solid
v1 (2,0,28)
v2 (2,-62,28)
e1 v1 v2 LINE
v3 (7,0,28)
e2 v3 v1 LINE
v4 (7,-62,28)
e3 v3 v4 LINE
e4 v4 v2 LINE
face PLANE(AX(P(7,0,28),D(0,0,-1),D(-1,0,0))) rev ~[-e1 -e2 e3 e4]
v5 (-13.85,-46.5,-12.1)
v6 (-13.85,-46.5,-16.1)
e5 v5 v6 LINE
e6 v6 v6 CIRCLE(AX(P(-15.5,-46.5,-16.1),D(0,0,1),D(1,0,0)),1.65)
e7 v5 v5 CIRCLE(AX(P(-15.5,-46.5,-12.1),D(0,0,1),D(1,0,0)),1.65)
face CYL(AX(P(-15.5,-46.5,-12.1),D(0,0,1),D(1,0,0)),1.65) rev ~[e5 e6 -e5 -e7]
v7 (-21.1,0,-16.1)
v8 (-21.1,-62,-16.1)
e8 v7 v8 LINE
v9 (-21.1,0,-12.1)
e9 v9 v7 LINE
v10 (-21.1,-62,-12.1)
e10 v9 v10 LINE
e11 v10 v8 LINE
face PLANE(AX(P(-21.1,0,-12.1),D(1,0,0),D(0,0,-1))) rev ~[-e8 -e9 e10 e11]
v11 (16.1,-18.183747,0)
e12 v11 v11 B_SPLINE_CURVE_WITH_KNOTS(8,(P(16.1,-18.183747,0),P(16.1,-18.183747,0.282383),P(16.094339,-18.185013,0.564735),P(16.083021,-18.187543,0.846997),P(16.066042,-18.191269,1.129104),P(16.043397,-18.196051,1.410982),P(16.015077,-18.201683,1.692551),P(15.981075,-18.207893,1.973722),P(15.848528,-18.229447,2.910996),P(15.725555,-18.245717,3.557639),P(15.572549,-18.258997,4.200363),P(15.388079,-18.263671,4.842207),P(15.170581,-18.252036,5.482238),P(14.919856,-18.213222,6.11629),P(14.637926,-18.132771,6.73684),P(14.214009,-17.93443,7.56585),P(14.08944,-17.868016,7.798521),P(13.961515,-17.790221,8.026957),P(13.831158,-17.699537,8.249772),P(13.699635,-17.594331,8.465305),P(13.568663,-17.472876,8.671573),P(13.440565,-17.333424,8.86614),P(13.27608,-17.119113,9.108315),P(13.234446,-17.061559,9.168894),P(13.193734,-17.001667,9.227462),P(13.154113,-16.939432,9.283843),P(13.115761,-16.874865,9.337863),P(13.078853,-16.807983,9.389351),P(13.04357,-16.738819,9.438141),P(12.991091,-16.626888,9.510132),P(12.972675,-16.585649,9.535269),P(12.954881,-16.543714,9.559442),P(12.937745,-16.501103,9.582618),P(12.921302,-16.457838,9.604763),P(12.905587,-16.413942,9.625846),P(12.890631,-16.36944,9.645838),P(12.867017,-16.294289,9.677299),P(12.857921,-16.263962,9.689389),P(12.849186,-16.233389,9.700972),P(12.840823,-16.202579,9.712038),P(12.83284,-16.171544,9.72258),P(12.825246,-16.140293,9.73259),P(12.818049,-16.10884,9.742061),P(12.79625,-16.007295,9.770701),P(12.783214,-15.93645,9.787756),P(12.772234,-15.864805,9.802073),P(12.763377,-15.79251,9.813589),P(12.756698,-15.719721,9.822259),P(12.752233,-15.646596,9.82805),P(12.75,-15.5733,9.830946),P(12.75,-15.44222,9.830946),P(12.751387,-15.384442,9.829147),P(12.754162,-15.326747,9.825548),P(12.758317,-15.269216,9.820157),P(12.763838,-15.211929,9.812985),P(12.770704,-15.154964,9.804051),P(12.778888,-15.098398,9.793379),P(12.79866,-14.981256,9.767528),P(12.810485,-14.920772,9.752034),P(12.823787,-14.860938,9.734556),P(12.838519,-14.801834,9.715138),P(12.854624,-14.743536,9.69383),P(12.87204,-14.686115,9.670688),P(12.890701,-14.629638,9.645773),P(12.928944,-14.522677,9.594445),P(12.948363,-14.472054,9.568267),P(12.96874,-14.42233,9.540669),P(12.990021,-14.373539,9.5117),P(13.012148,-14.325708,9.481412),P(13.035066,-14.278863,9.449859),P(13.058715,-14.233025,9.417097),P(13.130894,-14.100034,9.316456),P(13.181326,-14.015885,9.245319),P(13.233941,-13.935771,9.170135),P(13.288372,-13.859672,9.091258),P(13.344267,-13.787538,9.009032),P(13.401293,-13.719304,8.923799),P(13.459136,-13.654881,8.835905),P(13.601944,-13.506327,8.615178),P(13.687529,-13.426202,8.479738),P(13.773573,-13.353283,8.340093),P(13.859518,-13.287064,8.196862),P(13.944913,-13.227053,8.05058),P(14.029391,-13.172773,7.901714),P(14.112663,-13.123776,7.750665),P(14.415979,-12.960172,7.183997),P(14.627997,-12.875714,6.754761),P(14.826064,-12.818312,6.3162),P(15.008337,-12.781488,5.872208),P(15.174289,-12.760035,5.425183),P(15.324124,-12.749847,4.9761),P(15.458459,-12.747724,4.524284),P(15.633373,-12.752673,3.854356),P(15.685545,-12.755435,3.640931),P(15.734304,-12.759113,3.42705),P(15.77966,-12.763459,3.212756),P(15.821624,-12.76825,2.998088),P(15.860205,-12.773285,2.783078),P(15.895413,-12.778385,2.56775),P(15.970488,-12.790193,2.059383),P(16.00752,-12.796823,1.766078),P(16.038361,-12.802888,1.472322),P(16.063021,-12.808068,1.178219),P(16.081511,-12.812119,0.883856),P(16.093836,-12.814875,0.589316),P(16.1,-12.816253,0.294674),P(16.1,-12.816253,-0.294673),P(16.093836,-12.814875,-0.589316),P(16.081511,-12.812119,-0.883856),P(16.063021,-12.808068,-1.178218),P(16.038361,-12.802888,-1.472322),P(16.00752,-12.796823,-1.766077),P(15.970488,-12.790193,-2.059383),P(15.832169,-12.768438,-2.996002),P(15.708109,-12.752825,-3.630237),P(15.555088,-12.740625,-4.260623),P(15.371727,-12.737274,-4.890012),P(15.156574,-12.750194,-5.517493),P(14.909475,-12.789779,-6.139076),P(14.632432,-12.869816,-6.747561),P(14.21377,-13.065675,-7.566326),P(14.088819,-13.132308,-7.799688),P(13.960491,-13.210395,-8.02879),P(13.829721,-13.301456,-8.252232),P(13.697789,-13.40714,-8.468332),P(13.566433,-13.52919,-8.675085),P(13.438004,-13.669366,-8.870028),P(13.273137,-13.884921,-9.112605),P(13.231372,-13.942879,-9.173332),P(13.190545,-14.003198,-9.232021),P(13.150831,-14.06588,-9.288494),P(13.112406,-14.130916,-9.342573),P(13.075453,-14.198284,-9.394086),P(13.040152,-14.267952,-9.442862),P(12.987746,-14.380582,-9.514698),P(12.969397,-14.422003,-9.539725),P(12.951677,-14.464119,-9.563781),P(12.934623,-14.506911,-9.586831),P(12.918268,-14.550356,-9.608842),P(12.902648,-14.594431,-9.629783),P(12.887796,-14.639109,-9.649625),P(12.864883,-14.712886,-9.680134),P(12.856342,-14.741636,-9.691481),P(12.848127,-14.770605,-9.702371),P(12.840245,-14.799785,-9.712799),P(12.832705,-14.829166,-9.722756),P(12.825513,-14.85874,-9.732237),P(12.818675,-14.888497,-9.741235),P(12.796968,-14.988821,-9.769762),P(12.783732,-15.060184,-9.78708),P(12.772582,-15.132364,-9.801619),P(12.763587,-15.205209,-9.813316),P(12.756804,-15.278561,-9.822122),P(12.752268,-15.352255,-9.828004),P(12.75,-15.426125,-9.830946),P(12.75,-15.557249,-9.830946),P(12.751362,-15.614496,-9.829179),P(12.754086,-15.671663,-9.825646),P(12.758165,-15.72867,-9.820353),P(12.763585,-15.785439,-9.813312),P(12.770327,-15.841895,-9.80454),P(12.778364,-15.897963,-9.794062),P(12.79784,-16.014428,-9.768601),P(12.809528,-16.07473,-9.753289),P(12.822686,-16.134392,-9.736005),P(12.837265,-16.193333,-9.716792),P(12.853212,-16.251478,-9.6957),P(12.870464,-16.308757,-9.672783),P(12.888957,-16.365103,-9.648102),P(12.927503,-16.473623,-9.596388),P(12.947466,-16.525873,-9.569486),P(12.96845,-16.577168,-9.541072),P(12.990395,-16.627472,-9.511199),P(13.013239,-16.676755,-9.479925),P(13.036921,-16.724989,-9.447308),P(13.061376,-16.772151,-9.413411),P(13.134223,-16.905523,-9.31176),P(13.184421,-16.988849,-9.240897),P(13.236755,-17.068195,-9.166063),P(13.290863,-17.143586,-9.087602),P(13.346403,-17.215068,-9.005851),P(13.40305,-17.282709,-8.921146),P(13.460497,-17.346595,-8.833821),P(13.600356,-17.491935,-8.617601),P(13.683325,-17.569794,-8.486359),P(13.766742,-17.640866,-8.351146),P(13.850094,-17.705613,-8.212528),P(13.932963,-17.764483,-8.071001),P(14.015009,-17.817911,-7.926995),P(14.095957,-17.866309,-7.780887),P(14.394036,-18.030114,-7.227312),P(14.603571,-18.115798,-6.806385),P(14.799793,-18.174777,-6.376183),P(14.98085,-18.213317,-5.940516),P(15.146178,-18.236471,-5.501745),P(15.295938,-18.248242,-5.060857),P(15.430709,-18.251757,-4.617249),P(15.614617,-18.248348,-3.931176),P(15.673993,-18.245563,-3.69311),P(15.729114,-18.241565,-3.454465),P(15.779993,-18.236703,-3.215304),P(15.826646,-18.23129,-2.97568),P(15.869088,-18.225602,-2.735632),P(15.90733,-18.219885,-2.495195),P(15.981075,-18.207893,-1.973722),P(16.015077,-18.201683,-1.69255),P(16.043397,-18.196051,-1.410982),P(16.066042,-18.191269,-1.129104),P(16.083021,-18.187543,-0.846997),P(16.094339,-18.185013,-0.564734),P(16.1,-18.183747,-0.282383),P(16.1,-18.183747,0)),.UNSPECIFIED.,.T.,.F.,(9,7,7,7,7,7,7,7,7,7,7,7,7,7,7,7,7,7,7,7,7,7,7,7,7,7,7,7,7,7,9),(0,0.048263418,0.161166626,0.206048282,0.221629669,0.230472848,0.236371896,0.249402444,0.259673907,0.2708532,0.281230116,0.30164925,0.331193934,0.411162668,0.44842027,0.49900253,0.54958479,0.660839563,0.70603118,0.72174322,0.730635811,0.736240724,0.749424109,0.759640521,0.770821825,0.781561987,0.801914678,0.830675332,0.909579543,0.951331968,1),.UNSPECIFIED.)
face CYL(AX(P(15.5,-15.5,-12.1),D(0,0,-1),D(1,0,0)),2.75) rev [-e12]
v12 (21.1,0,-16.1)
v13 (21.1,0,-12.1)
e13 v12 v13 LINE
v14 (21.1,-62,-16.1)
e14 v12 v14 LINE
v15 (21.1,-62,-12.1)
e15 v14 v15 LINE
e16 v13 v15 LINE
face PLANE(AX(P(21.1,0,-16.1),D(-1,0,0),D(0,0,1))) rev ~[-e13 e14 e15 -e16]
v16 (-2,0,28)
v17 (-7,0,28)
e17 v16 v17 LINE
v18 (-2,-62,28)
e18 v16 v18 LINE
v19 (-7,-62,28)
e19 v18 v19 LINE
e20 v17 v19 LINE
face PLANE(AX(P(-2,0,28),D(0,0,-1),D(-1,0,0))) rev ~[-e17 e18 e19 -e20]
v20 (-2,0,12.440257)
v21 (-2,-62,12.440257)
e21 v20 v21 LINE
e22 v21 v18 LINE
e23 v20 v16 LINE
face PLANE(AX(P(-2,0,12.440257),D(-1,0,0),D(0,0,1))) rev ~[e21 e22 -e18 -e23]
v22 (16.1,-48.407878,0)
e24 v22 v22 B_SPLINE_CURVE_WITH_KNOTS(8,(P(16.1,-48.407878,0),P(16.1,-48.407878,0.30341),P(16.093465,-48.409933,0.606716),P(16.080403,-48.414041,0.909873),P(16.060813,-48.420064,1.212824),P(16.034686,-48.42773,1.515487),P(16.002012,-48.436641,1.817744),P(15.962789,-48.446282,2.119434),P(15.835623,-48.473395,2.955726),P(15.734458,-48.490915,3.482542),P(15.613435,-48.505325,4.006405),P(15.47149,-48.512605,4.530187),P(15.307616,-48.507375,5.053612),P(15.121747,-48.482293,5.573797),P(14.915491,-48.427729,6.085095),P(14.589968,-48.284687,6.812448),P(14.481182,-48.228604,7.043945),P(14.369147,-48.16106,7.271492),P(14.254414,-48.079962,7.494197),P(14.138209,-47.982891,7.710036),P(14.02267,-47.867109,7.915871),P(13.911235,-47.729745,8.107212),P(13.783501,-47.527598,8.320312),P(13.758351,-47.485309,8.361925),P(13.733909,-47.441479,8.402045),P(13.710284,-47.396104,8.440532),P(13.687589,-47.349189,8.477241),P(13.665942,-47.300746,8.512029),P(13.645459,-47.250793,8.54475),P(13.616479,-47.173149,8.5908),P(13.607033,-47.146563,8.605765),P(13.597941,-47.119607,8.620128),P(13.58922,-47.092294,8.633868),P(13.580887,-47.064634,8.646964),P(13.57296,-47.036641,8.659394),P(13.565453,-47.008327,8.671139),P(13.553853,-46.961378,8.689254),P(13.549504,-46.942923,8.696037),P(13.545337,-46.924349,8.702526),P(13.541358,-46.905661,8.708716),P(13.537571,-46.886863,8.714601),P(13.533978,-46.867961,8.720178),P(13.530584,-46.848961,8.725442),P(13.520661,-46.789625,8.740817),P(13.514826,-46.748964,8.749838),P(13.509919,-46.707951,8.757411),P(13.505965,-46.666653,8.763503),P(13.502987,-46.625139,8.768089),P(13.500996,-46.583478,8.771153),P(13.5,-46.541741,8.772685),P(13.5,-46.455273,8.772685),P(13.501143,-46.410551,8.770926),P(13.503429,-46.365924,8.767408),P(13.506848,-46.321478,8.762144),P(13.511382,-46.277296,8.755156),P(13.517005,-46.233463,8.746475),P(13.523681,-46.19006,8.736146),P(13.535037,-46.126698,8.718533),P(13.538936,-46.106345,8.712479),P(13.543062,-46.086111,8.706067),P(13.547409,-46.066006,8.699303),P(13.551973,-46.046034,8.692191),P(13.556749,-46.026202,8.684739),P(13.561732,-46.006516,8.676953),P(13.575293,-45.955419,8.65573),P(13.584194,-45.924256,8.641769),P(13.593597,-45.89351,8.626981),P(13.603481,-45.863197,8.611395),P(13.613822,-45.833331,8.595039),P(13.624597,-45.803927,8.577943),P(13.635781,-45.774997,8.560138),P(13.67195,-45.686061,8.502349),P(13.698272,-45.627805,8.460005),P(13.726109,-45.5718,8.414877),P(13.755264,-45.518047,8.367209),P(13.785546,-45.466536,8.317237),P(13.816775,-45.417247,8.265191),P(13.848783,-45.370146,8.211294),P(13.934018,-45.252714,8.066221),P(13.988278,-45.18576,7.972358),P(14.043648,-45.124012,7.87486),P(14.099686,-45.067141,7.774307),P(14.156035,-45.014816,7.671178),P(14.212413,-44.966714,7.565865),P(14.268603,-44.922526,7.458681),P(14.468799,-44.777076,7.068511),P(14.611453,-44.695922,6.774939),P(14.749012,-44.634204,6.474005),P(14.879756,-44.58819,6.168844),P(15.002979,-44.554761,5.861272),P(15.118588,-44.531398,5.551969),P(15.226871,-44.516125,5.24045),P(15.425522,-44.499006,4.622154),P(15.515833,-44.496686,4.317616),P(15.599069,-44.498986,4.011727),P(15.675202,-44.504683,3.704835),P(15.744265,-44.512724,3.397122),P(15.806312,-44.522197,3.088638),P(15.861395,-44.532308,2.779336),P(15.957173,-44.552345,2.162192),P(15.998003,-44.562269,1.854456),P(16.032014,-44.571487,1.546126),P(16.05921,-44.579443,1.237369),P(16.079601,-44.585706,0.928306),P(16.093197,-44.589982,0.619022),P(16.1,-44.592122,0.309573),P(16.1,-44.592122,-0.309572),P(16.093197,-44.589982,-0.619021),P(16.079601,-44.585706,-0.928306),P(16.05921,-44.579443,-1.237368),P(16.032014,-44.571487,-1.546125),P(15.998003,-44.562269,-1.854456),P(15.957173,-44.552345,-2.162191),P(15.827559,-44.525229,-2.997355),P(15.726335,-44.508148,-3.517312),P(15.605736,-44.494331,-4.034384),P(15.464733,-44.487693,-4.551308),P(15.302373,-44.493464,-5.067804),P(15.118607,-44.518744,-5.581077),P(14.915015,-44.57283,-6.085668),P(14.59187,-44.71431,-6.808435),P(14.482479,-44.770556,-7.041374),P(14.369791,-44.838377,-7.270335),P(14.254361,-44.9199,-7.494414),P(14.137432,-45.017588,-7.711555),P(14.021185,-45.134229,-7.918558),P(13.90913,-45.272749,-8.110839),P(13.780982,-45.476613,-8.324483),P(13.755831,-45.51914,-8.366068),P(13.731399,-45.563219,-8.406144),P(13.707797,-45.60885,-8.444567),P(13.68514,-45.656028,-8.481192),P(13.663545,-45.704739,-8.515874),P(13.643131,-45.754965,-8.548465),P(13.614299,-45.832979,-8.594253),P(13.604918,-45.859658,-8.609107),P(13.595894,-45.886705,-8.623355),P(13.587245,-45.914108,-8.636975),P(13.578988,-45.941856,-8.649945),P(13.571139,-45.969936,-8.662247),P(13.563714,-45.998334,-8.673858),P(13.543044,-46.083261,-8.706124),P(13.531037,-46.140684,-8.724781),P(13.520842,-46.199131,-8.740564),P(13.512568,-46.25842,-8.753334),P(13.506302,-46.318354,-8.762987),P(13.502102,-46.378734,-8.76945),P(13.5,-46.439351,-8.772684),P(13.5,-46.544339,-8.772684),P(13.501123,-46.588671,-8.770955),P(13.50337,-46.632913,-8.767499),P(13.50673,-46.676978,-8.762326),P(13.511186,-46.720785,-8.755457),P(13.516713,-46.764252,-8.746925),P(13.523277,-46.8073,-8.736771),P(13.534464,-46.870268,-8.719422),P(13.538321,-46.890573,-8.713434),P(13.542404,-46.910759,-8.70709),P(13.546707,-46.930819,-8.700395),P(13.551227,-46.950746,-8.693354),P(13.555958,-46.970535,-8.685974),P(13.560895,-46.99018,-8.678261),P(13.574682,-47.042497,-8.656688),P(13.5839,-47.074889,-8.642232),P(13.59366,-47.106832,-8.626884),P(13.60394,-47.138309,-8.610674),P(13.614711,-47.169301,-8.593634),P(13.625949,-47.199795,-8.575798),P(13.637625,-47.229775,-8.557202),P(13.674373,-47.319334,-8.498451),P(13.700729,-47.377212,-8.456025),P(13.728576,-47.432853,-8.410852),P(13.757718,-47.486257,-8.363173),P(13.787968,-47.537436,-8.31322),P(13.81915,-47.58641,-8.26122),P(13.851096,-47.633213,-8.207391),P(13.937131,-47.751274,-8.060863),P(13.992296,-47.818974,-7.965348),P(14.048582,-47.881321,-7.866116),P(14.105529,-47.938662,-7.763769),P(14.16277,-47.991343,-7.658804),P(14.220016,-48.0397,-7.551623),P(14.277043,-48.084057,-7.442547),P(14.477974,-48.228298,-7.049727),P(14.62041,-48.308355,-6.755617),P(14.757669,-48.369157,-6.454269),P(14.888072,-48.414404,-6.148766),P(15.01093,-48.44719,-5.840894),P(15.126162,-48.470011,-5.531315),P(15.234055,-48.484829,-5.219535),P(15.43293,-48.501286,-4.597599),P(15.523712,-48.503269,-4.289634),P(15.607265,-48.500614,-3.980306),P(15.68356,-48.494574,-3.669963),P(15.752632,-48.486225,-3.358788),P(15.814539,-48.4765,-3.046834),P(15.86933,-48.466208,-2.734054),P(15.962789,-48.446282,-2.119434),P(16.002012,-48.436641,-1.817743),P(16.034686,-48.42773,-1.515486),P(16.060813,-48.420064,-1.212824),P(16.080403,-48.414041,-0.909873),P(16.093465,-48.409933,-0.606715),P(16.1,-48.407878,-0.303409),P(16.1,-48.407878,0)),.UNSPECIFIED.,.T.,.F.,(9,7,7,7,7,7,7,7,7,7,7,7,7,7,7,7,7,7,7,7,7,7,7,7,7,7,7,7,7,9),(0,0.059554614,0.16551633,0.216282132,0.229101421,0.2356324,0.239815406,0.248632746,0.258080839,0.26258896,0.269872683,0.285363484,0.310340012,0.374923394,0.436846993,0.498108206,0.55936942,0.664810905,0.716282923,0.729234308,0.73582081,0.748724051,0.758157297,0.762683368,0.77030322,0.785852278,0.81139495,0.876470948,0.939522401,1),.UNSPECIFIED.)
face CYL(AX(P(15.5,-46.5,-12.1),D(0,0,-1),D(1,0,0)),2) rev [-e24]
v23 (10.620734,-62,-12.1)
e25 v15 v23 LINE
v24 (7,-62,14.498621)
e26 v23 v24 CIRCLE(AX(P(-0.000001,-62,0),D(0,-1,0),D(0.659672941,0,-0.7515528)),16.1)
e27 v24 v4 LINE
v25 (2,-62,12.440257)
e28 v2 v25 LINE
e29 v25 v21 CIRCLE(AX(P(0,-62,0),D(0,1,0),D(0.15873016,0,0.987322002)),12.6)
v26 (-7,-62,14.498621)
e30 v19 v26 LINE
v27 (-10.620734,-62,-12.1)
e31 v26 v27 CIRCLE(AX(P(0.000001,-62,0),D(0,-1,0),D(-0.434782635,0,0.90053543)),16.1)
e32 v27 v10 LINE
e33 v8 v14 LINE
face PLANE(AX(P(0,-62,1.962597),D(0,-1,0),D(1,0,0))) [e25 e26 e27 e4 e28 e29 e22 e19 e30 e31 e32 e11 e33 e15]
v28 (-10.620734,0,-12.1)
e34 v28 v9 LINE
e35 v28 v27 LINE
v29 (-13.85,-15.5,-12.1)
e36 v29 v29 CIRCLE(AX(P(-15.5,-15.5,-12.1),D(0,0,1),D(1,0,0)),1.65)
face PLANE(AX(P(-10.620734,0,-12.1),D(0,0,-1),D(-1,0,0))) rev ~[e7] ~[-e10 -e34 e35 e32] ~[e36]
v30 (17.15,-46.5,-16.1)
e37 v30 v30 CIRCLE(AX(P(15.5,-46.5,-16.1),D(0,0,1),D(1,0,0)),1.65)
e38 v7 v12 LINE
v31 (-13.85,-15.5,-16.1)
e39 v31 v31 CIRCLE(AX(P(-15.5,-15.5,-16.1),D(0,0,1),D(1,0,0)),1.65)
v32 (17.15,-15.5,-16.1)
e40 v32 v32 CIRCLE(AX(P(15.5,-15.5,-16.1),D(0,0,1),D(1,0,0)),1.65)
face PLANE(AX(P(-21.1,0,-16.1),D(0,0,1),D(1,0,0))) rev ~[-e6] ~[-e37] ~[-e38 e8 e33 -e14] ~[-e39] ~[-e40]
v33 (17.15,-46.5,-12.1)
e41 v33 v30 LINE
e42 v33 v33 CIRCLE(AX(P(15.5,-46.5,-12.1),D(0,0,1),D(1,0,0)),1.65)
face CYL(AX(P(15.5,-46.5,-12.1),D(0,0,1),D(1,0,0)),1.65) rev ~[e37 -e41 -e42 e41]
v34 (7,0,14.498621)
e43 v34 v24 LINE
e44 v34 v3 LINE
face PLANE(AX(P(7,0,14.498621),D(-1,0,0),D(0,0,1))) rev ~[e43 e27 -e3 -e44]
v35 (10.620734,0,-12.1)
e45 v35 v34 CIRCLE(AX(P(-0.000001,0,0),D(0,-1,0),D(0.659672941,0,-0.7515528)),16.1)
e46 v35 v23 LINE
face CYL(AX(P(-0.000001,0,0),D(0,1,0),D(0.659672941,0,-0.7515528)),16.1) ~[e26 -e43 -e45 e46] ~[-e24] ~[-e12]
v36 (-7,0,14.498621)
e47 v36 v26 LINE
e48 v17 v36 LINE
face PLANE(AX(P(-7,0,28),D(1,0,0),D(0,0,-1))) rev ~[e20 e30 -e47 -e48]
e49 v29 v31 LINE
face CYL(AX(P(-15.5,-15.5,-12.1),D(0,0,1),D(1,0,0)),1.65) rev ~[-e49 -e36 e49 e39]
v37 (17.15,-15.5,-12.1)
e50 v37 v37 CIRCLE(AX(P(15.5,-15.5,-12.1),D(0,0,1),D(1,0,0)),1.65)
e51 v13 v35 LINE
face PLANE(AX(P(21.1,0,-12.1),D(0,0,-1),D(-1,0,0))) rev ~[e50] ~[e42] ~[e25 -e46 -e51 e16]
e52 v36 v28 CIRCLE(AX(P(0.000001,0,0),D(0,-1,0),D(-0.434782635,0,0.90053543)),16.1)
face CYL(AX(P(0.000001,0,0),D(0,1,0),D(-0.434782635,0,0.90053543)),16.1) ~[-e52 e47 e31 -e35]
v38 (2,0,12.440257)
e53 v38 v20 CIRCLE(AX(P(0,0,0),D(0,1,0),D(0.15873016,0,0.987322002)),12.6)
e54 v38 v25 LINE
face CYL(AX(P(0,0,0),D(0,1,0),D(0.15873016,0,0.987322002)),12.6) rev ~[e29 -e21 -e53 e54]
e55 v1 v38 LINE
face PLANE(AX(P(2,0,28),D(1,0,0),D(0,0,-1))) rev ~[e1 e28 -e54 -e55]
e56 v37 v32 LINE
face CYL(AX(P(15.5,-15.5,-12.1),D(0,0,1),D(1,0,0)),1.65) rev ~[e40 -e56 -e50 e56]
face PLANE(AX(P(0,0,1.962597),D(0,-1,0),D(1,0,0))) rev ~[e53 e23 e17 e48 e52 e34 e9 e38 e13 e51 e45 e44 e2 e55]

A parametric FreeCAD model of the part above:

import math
import FreeCAD as App
import Part
import Sketcher

doc = App.newDocument("Part")
body = doc.addObject("PartDesign::Body", "Body")

# Sketch on XZ plane
sketch1 = body.newObject("Sketcher::SketchObject", "Sketch")
sketch1.AttachmentSupport = (doc.getObject("XZ_Plane"), [""])
sketch1.MapMode = "FlatFace"
sketch1.addGeometry([
    Part.ArcOfCircle(Part.Circle(App.Vector(0, 0, 0), App.Vector(0, 0, 1), 12.6), math.radians(99), math.radians(441)),  # 0
    Part.LineSegment(App.Vector(-2, 12.4, 0), App.Vector(-2, 28, 0)),  # 1
    Part.LineSegment(App.Vector(-2, 28, 0), App.Vector(-7, 28, 0)),  # 2
    Part.LineSegment(App.Vector(-7, 28, 0), App.Vector(-7, 14.5, 0)),  # 3
    Part.ArcOfCircle(Part.Circle(App.Vector(0, 0, 0), App.Vector(0, 0, 1), 16.1), math.radians(116), math.radians(229)),  # 4
    Part.LineSegment(App.Vector(-10.6, -12.1, 0), App.Vector(-21.1, -12.1, 0)),  # 5
    Part.LineSegment(App.Vector(-21.1, -12.1, 0), App.Vector(-21.1, -16.1, 0)),  # 6
    Part.LineSegment(App.Vector(-21.1, -16.1, 0), App.Vector(21.1, -16.1, 0)),  # 7
    Part.LineSegment(App.Vector(21.1, -16.1, 0), App.Vector(21.1, -12.1, 0)),  # 8
    Part.LineSegment(App.Vector(21.1, -12.1, 0), App.Vector(10.6, -12.1, 0)),  # 9
    Part.ArcOfCircle(Part.Circle(App.Vector(0, 0, 0), App.Vector(0, 0, 1), 16.1), math.radians(-49), math.radians(64)),  # 10
    Part.LineSegment(App.Vector(7, 14.5, 0), App.Vector(7, 28, 0)),  # 11
    Part.LineSegment(App.Vector(7, 28, 0), App.Vector(2, 28, 0)),  # 12
    Part.LineSegment(App.Vector(2, 28, 0), App.Vector(2, 12.4, 0)),  # 13
], False)
sketch1.addConstraint([
    Sketcher.Constraint("Coincident", 0, 1, 1, 1),
    Sketcher.Constraint("Coincident", 1, 2, 2, 1),
    Sketcher.Constraint("Coincident", 2, 2, 3, 1),
    Sketcher.Constraint("Coincident", 3, 2, 4, 1),
    Sketcher.Constraint("Coincident", 4, 2, 5, 1),
    Sketcher.Constraint("Coincident", 5, 2, 6, 1),
    Sketcher.Constraint("Coincident", 6, 2, 7, 1),
    Sketcher.Constraint("Coincident", 7, 2, 8, 1),
    Sketcher.Constraint("Coincident", 8, 2, 9, 1),
    Sketcher.Constraint("Coincident", 9, 2, 10, 1),
    Sketcher.Constraint("Coincident", 10, 2, 11, 1),
    Sketcher.Constraint("Coincident", 11, 2, 12, 1),
    Sketcher.Constraint("Coincident", 12, 2, 13, 1),
    Sketcher.Constraint("Coincident", 13, 2, 0, 2),
    Sketcher.Constraint("Vertical", 1),
    Sketcher.Constraint("Horizontal", 2),
    Sketcher.Constraint("Vertical", 3),
    Sketcher.Constraint("Horizontal", 5),
    Sketcher.Constraint("Vertical", 6),
    Sketcher.Constraint("Horizontal", 7),
    Sketcher.Constraint("Vertical", 8),
    Sketcher.Constraint("Horizontal", 9),
    Sketcher.Constraint("Vertical", 11),
    Sketcher.Constraint("Horizontal", 12),
    Sketcher.Constraint("Vertical", 13),
    Sketcher.Constraint("Coincident", 0, 3, -1, 1),
    Sketcher.Constraint("Coincident", 4, 3, -1, 1),
    Sketcher.Constraint("Coincident", 10, 3, -1, 1),
    Sketcher.Constraint("Equal", 4, 10),
    Sketcher.Constraint("Symmetric", 5, 2, 8, 2, -2),
    Sketcher.Constraint("Symmetric", 2, 2, 11, 2, -2),
    Sketcher.Constraint("Horizontal", 0, 1, 13, 2),
    Sketcher.Constraint("Radius", 0, 12.6),
    Sketcher.Constraint("Radius", 4, 16.1),
    Sketcher.Constraint("DistanceX", 2, 2, 2, 1, 5.0),
    Sketcher.Constraint("DistanceY", 6, 2, 6, 1, 4.0),
    Sketcher.Constraint("DistanceX", 7, 1, 7, 2, 42.2),
    Sketcher.Constraint("DistanceX", 0, 1, -1, 1, 2.0),
    Sketcher.Constraint("DistanceY", -1, 1, 1, 2, 28.0),
    Sketcher.Constraint("DistanceY", 4, 2, -1, 1, 12.1),
])
pad1 = body.newObject("PartDesign::Pad", "Pad")
pad1.Profile = sketch1
pad1.Length = 62

# Sketch on XY plane
sketch2 = body.newObject("Sketcher::SketchObject", "Sketch001")
sketch2.AttachmentSupport = (doc.getObject("XY_Plane"), [""])
sketch2.MapMode = "FlatFace"
sketch2.AttachmentOffset = App.Placement(App.Vector(0, 0, -12.1), App.Rotation())
sketch2.addGeometry([
    Part.Circle(App.Vector(15.5, -15.5, 0), App.Vector(0, 0, 1), 1.6),
    Part.Circle(App.Vector(15.5, -46.5, 0), App.Vector(0, 0, 1), 1.6),
    Part.Circle(App.Vector(-15.5, -15.5, 0), App.Vector(0, 0, 1), 1.6),
    Part.Circle(App.Vector(-15.5, -46.5, 0), App.Vector(0, 0, 1), 1.6),
], False)
sketch2.addConstraint([
    Sketcher.Constraint("Equal", 0, 1),
    Sketcher.Constraint("Equal", 1, 2),
    Sketcher.Constraint("Equal", 2, 3),
    Sketcher.Constraint("Symmetric", 0, 3, 2, 3, -2),
    Sketcher.Constraint("Symmetric", 1, 3, 3, 3, -2),
    Sketcher.Constraint("Vertical", 0, 3, 1, 3),
    Sketcher.Constraint("Diameter", 0, 3.3),
    Sketcher.Constraint("DistanceY", 1, 3, 0, 3, 31.0),
    Sketcher.Constraint("DistanceX", 2, 3, 0, 3, 31.0),
    Sketcher.Constraint("DistanceY", 0, 3, -1, 1, 15.5),
])
pocket1 = body.newObject("PartDesign::Pocket", "Pocket")
pocket1.Profile = sketch2
pocket1.Length = 25

# Sketch on XY plane
sketch3 = body.newObject("Sketcher::SketchObject", "Sketch002")
sketch3.AttachmentSupport = (doc.getObject("XY_Plane"), [""])
sketch3.MapMode = "FlatFace"
sketch3.AttachmentOffset = App.Placement(App.Vector(0, 0, -12.1), App.Rotation())
sketch3.addGeometry([
    Part.Circle(App.Vector(15.5, -46.5, 0), App.Vector(0, 0, 1), 2),
    Part.Circle(App.Vector(15.5, -15.5, 0), App.Vector(0, 0, 1), 2.8),
], False)
sketch3.addConstraint([
    Sketcher.Constraint("Vertical", 0, 3, 1, 3),
    Sketcher.Constraint("Diameter", 0, 4.0),
    Sketcher.Constraint("Diameter", 1, 5.5),
    Sketcher.Constraint("DistanceY", 0, 3, 1, 3, 31.0),
    Sketcher.Constraint("DistanceX", -1, 1, 0, 3, 15.5),
    Sketcher.Constraint("DistanceY", 0, 3, -1, 1, 46.5),
])
pocket2 = body.newObject("PartDesign::Pocket", "Pocket001")
pocket2.Profile = sketch3
pocket2.Length = 25
pocket2.Reversed = True

doc.recompute()
